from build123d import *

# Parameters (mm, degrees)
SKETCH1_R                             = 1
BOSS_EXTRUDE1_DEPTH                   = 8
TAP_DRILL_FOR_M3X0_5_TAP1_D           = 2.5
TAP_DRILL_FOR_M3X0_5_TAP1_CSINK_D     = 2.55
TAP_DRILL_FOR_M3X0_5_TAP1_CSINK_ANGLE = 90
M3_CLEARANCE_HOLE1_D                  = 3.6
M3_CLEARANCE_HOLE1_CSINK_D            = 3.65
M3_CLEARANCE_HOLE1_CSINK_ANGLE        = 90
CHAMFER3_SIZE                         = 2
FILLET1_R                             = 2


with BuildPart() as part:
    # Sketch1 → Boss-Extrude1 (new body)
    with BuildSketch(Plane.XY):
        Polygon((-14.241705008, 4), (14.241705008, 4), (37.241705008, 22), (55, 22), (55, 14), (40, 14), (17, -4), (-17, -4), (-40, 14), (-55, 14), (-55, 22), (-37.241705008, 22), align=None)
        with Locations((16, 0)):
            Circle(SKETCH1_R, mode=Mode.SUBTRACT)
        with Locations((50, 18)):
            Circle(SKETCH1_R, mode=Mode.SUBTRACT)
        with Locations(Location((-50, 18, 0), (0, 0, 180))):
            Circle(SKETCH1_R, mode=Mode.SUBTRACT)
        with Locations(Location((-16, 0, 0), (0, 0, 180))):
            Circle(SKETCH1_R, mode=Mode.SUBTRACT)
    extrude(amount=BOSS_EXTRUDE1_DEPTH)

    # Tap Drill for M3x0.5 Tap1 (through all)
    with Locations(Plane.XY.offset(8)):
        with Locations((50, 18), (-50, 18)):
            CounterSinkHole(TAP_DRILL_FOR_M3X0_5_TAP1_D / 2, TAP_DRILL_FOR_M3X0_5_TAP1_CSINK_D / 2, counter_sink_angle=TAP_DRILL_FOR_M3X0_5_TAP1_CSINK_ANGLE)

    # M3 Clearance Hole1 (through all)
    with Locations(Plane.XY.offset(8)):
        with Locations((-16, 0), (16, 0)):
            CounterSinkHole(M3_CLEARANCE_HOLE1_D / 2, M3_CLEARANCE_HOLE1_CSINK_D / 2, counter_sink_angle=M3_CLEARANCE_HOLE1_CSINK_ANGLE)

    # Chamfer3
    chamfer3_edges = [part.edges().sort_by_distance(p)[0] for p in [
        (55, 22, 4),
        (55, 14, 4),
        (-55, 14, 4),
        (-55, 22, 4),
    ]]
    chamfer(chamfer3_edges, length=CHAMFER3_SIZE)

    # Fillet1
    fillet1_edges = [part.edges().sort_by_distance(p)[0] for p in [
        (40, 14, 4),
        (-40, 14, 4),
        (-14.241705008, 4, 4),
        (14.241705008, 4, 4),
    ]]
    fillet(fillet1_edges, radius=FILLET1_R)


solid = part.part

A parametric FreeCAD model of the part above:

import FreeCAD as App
import Part
import Sketcher
from FreeCAD import Vector
Q = App.Units.Quantity


def edges_at(feature, points):
    """Names of the edges that pass closest to the given points."""
    edges = feature.Shape.Edges
    near = lambda p: min(range(len(edges)), key=lambda i: edges[i].distToShape(Part.Vertex(*p))[0])
    return sorted({f"Edge{near(p) + 1}" for p in points})

doc = App.newDocument("Part")
params = doc.addObject("Spreadsheet::Sheet", "Params")
for row, (alias, value) in enumerate([
    ("sketch1_diameter", "2 mm"),
    ("sketch1_width", "15 mm"),
    ("sketch1_width2", "34 mm"),
    ("sketch1_height", "8 mm"),
    ("pad1_length", "8 mm"),
    ("sketch2_diameter", "2.5 mm"),
    ("hole_diameter", "2.5 mm"),
    ("hole_csink_diameter", "2.55 mm"),
    ("sketch3_diameter", "3.6 mm"),
    ("hole2_diameter", "3.6 mm"),
    ("hole2_csink_diameter", "3.65 mm"),
    ("chamfer_size", "2 mm"),
    ("fillet_radius", "2 mm"),
], start=1):
    params.set(f"A{row}", alias)
    params.set(f"B{row}", "=" + value)
    params.setAlias(f"B{row}", alias)

body = doc.addObject("PartDesign::Body", "Body")

# Sketch on XY plane
sketch1 = body.newObject("Sketcher::SketchObject", "Sketch")
sketch1.AttachmentSupport = (doc.getObject("XY_Plane"), [""])
sketch1.MapMode = "FlatFace"
sketch1.addGeometry(Part.LineSegment(Vector(14.241705, 4, 0), Vector(-14.241705, 4, 0)), False)
sketch1.addGeometry(Part.LineSegment(Vector(-14.241705, 4, 0), Vector(-37.241705, 22, 0)), False)
sketch1.addGeometry(Part.LineSegment(Vector(-37.241705, 22, 0), Vector(-55, 22, 0)), False)
sketch1.addGeometry(Part.LineSegment(Vector(-55, 22, 0), Vector(-55, 14, 0)), False)
sketch1.addGeometry(Part.LineSegment(Vector(-55, 14, 0), Vector(-40, 14, 0)), False)
sketch1.addGeometry(Part.LineSegment(Vector(-40, 14, 0), Vector(-17, -4, 0)), False)
sketch1.addGeometry(Part.LineSegment(Vector(-17, -4, 0), Vector(17, -4, 0)), False)
sketch1.addGeometry(Part.LineSegment(Vector(17, -4, 0), Vector(40, 14, 0)), False)
sketch1.addGeometry(Part.LineSegment(Vector(40, 14, 0), Vector(55, 14, 0)), False)
sketch1.addGeometry(Part.LineSegment(Vector(55, 14, 0), Vector(55, 22, 0)), False)
sketch1.addGeometry(Part.LineSegment(Vector(55, 22, 0), Vector(37.241705, 22, 0)), False)
sketch1.addGeometry(Part.LineSegment(Vector(37.241705, 22, 0), Vector(14.241705, 4, 0)), False)
sketch1.addGeometry(Part.Circle(Vector(16, 0, 0), Vector(0, 0, 1), 1), False)
sketch1.addGeometry(Part.Circle(Vector(-16, 0, 0), Vector(0, 0, 1), 1), False)
sketch1.addGeometry(Part.Circle(Vector(50, 18, 0), Vector(0, 0, 1), 1), False)
sketch1.addGeometry(Part.Circle(Vector(-50, 18, 0), Vector(0, 0, 1), 1), False)
sketch1.addConstraint(Sketcher.Constraint("Coincident", 0, 2, 1, 1))
sketch1.addConstraint(Sketcher.Constraint("Coincident", 1, 2, 2, 1))
sketch1.addConstraint(Sketcher.Constraint("Coincident", 2, 2, 3, 1))
sketch1.addConstraint(Sketcher.Constraint("Coincident", 3, 2, 4, 1))
sketch1.addConstraint(Sketcher.Constraint("Coincident", 4, 2, 5, 1))
sketch1.addConstraint(Sketcher.Constraint("Coincident", 5, 2, 6, 1))
sketch1.addConstraint(Sketcher.Constraint("Coincident", 6, 2, 7, 1))
sketch1.addConstraint(Sketcher.Constraint("Coincident", 7, 2, 8, 1))
sketch1.addConstraint(Sketcher.Constraint("Coincident", 8, 2, 9, 1))
sketch1.addConstraint(Sketcher.Constraint("Coincident", 9, 2, 10, 1))
sketch1.addConstraint(Sketcher.Constraint("Coincident", 10, 2, 11, 1))
sketch1.addConstraint(Sketcher.Constraint("Coincident", 11, 2, 0, 1))
sketch1.addConstraint(Sketcher.Constraint("Horizontal", 0))
sketch1.addConstraint(Sketcher.Constraint("Horizontal", 2))
sketch1.addConstraint(Sketcher.Constraint("Vertical", 3))
sketch1.addConstraint(Sketcher.Constraint("Horizontal", 4))
sketch1.addConstraint(Sketcher.Constraint("Horizontal", 6))
sketch1.addConstraint(Sketcher.Constraint("Horizontal", 8))
sketch1.addConstraint(Sketcher.Constraint("Vertical", 9))
sketch1.addConstraint(Sketcher.Constraint("Horizontal", 10))
sketch1.addConstraint(Sketcher.Constraint("Equal", 12, 13))
sketch1.addConstraint(Sketcher.Constraint("Equal", 13, 14))
sketch1.addConstraint(Sketcher.Constraint("Equal", 14, 15))
sketch1.addConstraint(Sketcher.Constraint("Symmetric", 12, 3, 13, 3, -1, 1))
sketch1.addConstraint(Sketcher.Constraint("Symmetric", 14, 3, 15, 3, -2))
sketch1.addConstraint(Sketcher.Constraint("Symmetric", 4, 2, 7, 2, -2))
sketch1.addConstraint(Sketcher.Constraint("Symmetric", 2, 2, 9, 2, -2))
sketch1.addConstraint(Sketcher.Constraint("PointOnObject", 12, 3, -1))
sketch1.addConstraint(Sketcher.Constraint("Parallel", 1, 5))
sketch1.addConstraint(Sketcher.Constraint("Parallel", 7, 11))
sketch1.addConstraint(Sketcher.Constraint("Equal", 2, 10))
sketch1.addConstraint(Sketcher.Constraint("Equal", 1, 5))
sketch1.addConstraint(Sketcher.Constraint("Equal", 5, 7))
sketch1.addConstraint(Sketcher.Constraint("Diameter", 12, Q("2 mm")))
sketch1.addConstraint(Sketcher.Constraint("DistanceX", 4, 1, 4, 2, Q("15 mm")))
sketch1.addConstraint(Sketcher.Constraint("DistanceX", 6, 1, 6, 2, Q("34 mm")))
sketch1.addConstraint(Sketcher.Constraint("DistanceY", 3, 2, 3, 1, Q("8 mm")))
sketch1.addConstraint(Sketcher.Constraint("DistanceX", -1, 1, 12, 3, Q("16 mm")))
sketch1.addConstraint(Sketcher.Constraint("DistanceX", -1, 1, 14, 3, Q("50 mm")))
sketch1.addConstraint(Sketcher.Constraint("DistanceY", -1, 1, 14, 3, Q("18 mm")))
sketch1.addConstraint(Sketcher.Constraint("DistanceY", -1, 1, 0, 2, Q("4 mm")))
sketch1.addConstraint(Sketcher.Constraint("DistanceY", -1, 1, 1, 2, Q("22 mm")))
sketch1.addConstraint(Sketcher.Constraint("DistanceX", 2, 2, -1, 1, Q("55 mm")))
sketch1.addConstraint(Sketcher.Constraint("DistanceX", 0, 2, 0, 1, Q("28.48341 mm")))
sketch1.setExpression("Constraints[33]", "Params.sketch1_diameter")
sketch1.setExpression("Constraints[34]", "Params.sketch1_width")
sketch1.setExpression("Constraints[35]", "Params.sketch1_width2")
sketch1.setExpression("Constraints[36]", "Params.sketch1_height")
pad1 = body.newObject("PartDesign::Pad", "Pad")
pad1.Profile = sketch1
pad1.setExpression("Length", "Params.pad1_length")

# Sketch on XY plane
sketch2 = body.newObject("Sketcher::SketchObject", "Sketch001")
sketch2.AttachmentSupport = (doc.getObject("XY_Plane"), [""])
sketch2.MapMode = "FlatFace"
sketch2.AttachmentOffset = App.Placement(Vector(0, 0, 8), App.Rotation())
sketch2.addGeometry(Part.Circle(Vector(50, 18, 0), Vector(0, 0, 1), 1.25), False)
sketch2.addGeometry(Part.Circle(Vector(-50, 18, 0), Vector(0, 0, 1), 1.25), False)
sketch2.addConstraint(Sketcher.Constraint("Equal", 0, 1))
sketch2.addConstraint(Sketcher.Constraint("Symmetric", 0, 3, 1, 3, -2))
sketch2.addConstraint(Sketcher.Constraint("Diameter", 0, Q("2.5 mm")))
sketch2.addConstraint(Sketcher.Constraint("DistanceX", -1, 1, 0, 3, Q("50 mm")))
sketch2.addConstraint(Sketcher.Constraint("DistanceY", -1, 1, 0, 3, Q("18 mm")))
sketch2.setExpression("Constraints[2]", "Params.sketch2_diameter")
doc.recompute()
hole = body.newObject("PartDesign::Hole", "Hole")
hole.Profile = sketch2
hole.ThreadType = "None"
hole.setExpression("Diameter", "Params.hole_diameter")
hole.DepthType = "ThroughAll"
hole.HoleCutType = "Countersink"
hole.setExpression("HoleCutDiameter", "Params.hole_csink_diameter")
hole.HoleCutCountersinkAngle = 90

# Sketch on XY plane
sketch3 = body.newObject("Sketcher::SketchObject", "Sketch002")
sketch3.AttachmentSupport = (doc.getObject("XY_Plane"), [""])
sketch3.MapMode = "FlatFace"
sketch3.AttachmentOffset = App.Placement(Vector(0, 0, 8), App.Rotation())
sketch3.addGeometry(Part.Circle(Vector(-16, 0, 0), Vector(0, 0, 1), 1.8), False)
sketch3.addGeometry(Part.Circle(Vector(16, 0, 0), Vector(0, 0, 1), 1.8), False)
sketch3.addConstraint(Sketcher.Constraint("Equal", 0, 1))
sketch3.addConstraint(Sketcher.Constraint("Symmetric", 0, 3, 1, 3, -1, 1))
sketch3.addConstraint(Sketcher.Constraint("PointOnObject", 0, 3, -1))
sketch3.addConstraint(Sketcher.Constraint("Diameter", 0, Q("3.6 mm")))
sketch3.addConstraint(Sketcher.Constraint("DistanceX", 0, 3, -1, 1, Q("16 mm")))
sketch3.setExpression("Constraints[3]", "Params.sketch3_diameter")
doc.recompute()
hole2 = body.newObject("PartDesign::Hole", "Hole001")
hole2.Profile = sketch3
hole2.ThreadType = "None"
hole2.setExpression("Diameter", "Params.hole2_diameter")
hole2.DepthType = "ThroughAll"
hole2.HoleCutType = "Countersink"
hole2.setExpression("HoleCutDiameter", "Params.hole2_csink_diameter")
hole2.HoleCutCountersinkAngle = 90
doc.recompute()

chamfer = body.newObject("PartDesign::Chamfer", "Chamfer")
chamfer.Base = (hole2, edges_at(hole2, [
    (55, 22, 4),
    (55, 14, 4),
    (-55, 14, 4),
    (-55, 22, 4),
]))
chamfer.setExpression("Size", "Params.chamfer_size")
doc.recompute()

fillet = body.newObject("PartDesign::Fillet", "Fillet")
fillet.Base = (chamfer, edges_at(chamfer, [
    (40, 14, 4),
    (-40, 14, 4),
    (-14.242, 4, 4),
    (14.242, 4, 4),
]))
fillet.setExpression("Radius", "Params.fillet_radius")

doc.recompute()
